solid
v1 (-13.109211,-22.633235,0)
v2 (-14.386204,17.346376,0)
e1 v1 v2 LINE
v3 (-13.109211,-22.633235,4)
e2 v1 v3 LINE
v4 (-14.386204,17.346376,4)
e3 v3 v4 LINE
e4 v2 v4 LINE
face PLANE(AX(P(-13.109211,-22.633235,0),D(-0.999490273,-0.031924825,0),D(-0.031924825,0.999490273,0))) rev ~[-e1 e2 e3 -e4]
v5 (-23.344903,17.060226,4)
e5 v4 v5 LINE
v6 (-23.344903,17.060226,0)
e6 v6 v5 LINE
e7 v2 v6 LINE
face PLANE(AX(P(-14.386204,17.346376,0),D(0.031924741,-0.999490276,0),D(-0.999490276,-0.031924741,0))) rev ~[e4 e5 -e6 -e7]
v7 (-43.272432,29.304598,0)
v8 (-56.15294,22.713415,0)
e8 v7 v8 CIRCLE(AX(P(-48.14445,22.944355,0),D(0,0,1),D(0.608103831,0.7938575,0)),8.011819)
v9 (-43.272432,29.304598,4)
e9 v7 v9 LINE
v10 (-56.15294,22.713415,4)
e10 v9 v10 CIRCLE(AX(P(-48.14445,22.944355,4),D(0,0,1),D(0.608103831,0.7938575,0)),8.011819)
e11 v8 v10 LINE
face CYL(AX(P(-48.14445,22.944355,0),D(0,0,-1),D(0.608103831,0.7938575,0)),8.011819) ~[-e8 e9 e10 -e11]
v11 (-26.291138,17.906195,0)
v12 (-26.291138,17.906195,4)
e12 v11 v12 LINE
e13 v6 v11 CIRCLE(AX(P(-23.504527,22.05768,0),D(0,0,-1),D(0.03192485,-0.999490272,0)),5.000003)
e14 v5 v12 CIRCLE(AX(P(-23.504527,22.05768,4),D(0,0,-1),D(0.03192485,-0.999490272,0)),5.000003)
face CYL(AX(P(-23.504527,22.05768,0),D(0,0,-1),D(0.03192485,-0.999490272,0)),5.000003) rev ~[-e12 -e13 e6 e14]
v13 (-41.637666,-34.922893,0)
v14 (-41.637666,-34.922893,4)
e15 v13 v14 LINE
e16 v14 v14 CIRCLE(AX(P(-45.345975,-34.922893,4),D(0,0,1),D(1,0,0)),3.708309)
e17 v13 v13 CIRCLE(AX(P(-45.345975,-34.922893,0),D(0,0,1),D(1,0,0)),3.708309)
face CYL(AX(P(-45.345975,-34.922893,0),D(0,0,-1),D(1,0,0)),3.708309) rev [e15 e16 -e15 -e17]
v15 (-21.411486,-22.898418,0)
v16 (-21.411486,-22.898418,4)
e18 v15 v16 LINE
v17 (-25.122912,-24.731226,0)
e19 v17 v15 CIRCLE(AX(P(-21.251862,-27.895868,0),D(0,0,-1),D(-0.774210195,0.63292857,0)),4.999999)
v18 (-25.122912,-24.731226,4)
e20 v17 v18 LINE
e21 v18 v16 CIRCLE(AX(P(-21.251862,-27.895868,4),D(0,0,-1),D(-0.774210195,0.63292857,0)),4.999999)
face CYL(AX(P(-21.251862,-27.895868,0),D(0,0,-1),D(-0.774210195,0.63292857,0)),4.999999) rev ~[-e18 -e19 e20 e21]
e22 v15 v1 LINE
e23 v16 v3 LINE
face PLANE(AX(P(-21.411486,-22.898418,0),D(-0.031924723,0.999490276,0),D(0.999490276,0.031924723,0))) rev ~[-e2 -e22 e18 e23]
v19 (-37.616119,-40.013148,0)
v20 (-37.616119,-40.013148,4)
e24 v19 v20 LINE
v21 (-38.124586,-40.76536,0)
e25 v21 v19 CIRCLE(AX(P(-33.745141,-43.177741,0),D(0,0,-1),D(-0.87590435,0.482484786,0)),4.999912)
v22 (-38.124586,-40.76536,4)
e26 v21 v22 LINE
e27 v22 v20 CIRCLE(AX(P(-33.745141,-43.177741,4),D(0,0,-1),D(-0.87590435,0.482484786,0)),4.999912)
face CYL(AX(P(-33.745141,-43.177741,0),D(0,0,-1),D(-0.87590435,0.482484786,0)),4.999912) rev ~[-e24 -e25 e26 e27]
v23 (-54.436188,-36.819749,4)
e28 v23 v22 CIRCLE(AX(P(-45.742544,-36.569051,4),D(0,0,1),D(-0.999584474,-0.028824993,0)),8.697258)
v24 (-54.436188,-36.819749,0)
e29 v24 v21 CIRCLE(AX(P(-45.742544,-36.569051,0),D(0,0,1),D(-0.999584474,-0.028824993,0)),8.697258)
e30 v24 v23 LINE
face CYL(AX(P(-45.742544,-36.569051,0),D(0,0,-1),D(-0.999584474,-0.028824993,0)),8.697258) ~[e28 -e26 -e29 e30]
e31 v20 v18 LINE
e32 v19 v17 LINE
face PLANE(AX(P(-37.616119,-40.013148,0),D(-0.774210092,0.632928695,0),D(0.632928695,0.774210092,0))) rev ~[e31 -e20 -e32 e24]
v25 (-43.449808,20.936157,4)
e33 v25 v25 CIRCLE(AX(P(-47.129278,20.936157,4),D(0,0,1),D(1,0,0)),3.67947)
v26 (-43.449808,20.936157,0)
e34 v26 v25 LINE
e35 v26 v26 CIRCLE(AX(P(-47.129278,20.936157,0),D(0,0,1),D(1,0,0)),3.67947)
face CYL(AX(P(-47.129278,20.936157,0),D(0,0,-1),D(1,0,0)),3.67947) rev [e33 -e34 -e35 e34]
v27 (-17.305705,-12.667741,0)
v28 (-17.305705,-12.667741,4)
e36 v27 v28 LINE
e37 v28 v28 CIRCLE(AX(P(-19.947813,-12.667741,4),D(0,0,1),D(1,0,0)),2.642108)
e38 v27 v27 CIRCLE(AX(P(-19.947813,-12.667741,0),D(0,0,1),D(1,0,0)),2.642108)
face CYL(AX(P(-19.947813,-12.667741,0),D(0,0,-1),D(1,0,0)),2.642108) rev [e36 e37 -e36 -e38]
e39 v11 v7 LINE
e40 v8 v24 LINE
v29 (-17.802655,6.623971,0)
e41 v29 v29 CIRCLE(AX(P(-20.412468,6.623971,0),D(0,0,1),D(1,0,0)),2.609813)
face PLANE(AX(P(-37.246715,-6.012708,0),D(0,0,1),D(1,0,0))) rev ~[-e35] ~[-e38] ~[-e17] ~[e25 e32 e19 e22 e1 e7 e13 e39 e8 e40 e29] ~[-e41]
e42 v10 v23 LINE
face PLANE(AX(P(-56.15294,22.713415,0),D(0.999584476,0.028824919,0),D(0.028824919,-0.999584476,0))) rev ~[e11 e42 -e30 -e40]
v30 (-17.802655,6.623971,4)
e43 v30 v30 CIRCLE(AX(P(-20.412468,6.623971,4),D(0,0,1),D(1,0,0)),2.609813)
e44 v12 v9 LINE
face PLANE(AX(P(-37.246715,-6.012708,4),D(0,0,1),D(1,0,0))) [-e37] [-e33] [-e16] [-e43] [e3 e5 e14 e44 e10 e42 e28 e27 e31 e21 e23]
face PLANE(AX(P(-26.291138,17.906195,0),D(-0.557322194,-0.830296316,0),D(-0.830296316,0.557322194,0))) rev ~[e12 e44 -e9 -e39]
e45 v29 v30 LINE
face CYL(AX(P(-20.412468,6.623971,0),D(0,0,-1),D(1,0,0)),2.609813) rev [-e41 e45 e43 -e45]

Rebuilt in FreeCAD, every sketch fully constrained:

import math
import FreeCAD as App
import Part
import Sketcher

V = App.Vector
Q = App.Units.Quantity

doc = App.newDocument("Part")
body = doc.addObject("PartDesign::Body", "Body")

# Sketch on XY plane
sketch1 = doc.addObject("Sketcher::SketchObject", "Sketch")
body.addObject(sketch1)
sketch1.AttachmentSupport = (doc.XY_Plane, [""])
sketch1.MapMode = "FlatFace"
sketch1.addGeometry([
    Part.LineSegment(V(-21.411486, -22.898418, 0), V(-13.109211, -22.633235, 0)),  # 0
    Part.LineSegment(V(-13.109211, -22.633235, 0), V(-14.386204, 17.346376, 0)),  # 1
    Part.LineSegment(V(-14.386204, 17.346376, 0), V(-23.344903, 17.060226, 0)),  # 2
    Part.ArcOfCircle(Part.Circle(V(-23.504527, 22.05768, 0), V(0, 0, 1), 5.000003), math.radians(-123.870785), math.radians(-88.17053)),  # 3
    Part.LineSegment(V(-26.291138, 17.906195, 0), V(-43.272432, 29.304598, 0)),  # 4
    Part.ArcOfCircle(Part.Circle(V(-48.14445, 22.944355, 0), V(0, 0, 1), 8.011819), math.radians(52.547476), math.radians(181.651777)),  # 5
    Part.LineSegment(V(-56.15294, 22.713415, 0), V(-54.436188, -36.819749, 0)),  # 6
    Part.ArcOfCircle(Part.Circle(V(-45.742544, -36.569051, 0), V(0, 0, 1), 8.697258), math.radians(-178.348221), math.radians(-28.847924)),  # 7
    Part.ArcOfCircle(Part.Circle(V(-33.745141, -43.177741, 0), V(0, 0, 1), 4.999912), math.radians(140.733387), math.radians(151.152187)),  # 8
    Part.LineSegment(V(-37.616119, -40.013148, 0), V(-25.122912, -24.731226, 0)),  # 9
    Part.ArcOfCircle(Part.Circle(V(-21.251862, -27.895868, 0), V(0, 0, 1), 4.999999), math.radians(91.829466), math.radians(140.733481)),  # 10
    Part.Circle(V(-45.345975, -34.922893, 0), V(0, 0, 1), 3.708309),  # 11
    Part.Circle(V(-19.947813, -12.667741, 0), V(0, 0, 1), 2.642108),  # 12
    Part.Circle(V(-47.129278, 20.936157, 0), V(0, 0, 1), 3.67947),  # 13
    Part.Circle(V(-20.412468, 6.623971, 0), V(0, 0, 1), 2.609813),  # 14
], False)
sketch1.addConstraint([
    Sketcher.Constraint("Coincident", 0, 2, 1, 1),
    Sketcher.Constraint("Coincident", 1, 2, 2, 1),
    Sketcher.Constraint("Coincident", 2, 2, 3, 2),
    Sketcher.Constraint("Coincident", 3, 1, 4, 1),
    Sketcher.Constraint("Coincident", 4, 2, 5, 1),
    Sketcher.Constraint("Coincident", 5, 2, 6, 1),
    Sketcher.Constraint("Coincident", 6, 2, 7, 1),
    Sketcher.Constraint("Coincident", 7, 2, 8, 2),
    Sketcher.Constraint("Coincident", 8, 1, 9, 1),
    Sketcher.Constraint("Coincident", 9, 2, 10, 2),
    Sketcher.Constraint("Coincident", 10, 1, 0, 1),
    Sketcher.Constraint("Radius", 10, Q("4.999999 mm")),
    Sketcher.Constraint("Distance", 1, Q("40 mm")),
    Sketcher.Constraint("Diameter", 13, Q("7.35894 mm")),
    Sketcher.Constraint("Radius", 5, Q("8.011819 mm")),
    Sketcher.Constraint("Radius", 8, Q("4.999912 mm")),
    Sketcher.Constraint("DistanceY", 8, 3, 12, 3, Q("30.51 mm")),
    Sketcher.Constraint("Diameter", 11, Q("7.416618 mm")),
    Sketcher.Constraint("Diameter", 12, Q("5.284216 mm")),
    Sketcher.Constraint("Diameter", 14, Q("5.219626 mm")),
    Sketcher.Constraint("Radius", 3, Q("5.000003 mm")),
    Sketcher.Constraint("Radius", 7, Q("8.697258 mm")),
    Sketcher.Constraint("DistanceY", 13, 3, 5, 3, Q("2.008198 mm")),
    Sketcher.Constraint("DistanceX", 2, 2, 1, 2, Q("8.958699 mm")),
    Sketcher.Constraint("DistanceY", 6, 2, 7, 3, Q("0.250698 mm")),
    Sketcher.Constraint("DistanceX", 6, 2, 7, 2, Q("16.311602 mm")),
    Sketcher.Constraint("DistanceY", 8, 1, 6, 2, Q("3.193399 mm")),
    Sketcher.Constraint("DistanceX", 9, 2, 0, 2, Q("12.013701 mm")),
    Sketcher.Constraint("DistanceX", 9, 2, 12, 3, Q("5.175099 mm")),
    Sketcher.Constraint("Distance", 0, Q("8.306509 mm")),
    Sketcher.Constraint("Distance", 4, Q("20.452089 mm")),
    Sketcher.Constraint("Distance", 6, Q("59.557912 mm")),
    Sketcher.Constraint("DistanceY", -1, 1, 3, 3, Q("22.05768 mm")),
    Sketcher.Constraint("DistanceX", 5, 3, -1, 1, Q("48.14445 mm")),
    Sketcher.Constraint("DistanceY", 7, 3, -1, 1, Q("36.569051 mm")),
    Sketcher.Constraint("DistanceX", 8, 3, -1, 1, Q("33.745141 mm")),
    Sketcher.Constraint("DistanceY", 8, 3, -1, 1, Q("43.177741 mm")),
    Sketcher.Constraint("DistanceX", 14, 3, -1, 1, Q("20.412468 mm")),
    Sketcher.Constraint("DistanceY", -1, 1, 14, 3, Q("6.623971 mm")),
    Sketcher.Constraint("DistanceX", 0, 2, -1, 1, Q("13.109211 mm")),
    Sketcher.Constraint("DistanceX", 5, 2, -1, 1, Q("56.15294 mm")),
    Sketcher.Constraint("DistanceY", 10, 1, -1, 1, Q("22.898418 mm")),
    Sketcher.Constraint("DistanceX", 8, 3, 10, 3, Q("12.493279 mm")),
    Sketcher.Constraint("DistanceX", 7, 3, 11, 3, Q("0.396569 mm")),
    Sketcher.Constraint("DistanceY", 8, 3, 11, 3, Q("8.254848 mm")),
    Sketcher.Constraint("DistanceX", 5, 3, 13, 3, Q("1.015172 mm")),
    Sketcher.Constraint("DistanceX", 13, 3, 3, 3, Q("23.624751 mm")),
    Sketcher.Constraint("DistanceY", 11, 3, 0, 2, Q("12.289658 mm")),
    Sketcher.Constraint("DistanceX", 12, 3, 1, 2, Q("5.561609 mm")),
    Sketcher.Constraint("DistanceY", 2, 2, 3, 1, Q("0.845969 mm")),
])
pad1 = doc.addObject("PartDesign::Pad", "Pad")
body.addObject(pad1)
pad1.Profile = sketch1
pad1.Length = 4

doc.recompute()
